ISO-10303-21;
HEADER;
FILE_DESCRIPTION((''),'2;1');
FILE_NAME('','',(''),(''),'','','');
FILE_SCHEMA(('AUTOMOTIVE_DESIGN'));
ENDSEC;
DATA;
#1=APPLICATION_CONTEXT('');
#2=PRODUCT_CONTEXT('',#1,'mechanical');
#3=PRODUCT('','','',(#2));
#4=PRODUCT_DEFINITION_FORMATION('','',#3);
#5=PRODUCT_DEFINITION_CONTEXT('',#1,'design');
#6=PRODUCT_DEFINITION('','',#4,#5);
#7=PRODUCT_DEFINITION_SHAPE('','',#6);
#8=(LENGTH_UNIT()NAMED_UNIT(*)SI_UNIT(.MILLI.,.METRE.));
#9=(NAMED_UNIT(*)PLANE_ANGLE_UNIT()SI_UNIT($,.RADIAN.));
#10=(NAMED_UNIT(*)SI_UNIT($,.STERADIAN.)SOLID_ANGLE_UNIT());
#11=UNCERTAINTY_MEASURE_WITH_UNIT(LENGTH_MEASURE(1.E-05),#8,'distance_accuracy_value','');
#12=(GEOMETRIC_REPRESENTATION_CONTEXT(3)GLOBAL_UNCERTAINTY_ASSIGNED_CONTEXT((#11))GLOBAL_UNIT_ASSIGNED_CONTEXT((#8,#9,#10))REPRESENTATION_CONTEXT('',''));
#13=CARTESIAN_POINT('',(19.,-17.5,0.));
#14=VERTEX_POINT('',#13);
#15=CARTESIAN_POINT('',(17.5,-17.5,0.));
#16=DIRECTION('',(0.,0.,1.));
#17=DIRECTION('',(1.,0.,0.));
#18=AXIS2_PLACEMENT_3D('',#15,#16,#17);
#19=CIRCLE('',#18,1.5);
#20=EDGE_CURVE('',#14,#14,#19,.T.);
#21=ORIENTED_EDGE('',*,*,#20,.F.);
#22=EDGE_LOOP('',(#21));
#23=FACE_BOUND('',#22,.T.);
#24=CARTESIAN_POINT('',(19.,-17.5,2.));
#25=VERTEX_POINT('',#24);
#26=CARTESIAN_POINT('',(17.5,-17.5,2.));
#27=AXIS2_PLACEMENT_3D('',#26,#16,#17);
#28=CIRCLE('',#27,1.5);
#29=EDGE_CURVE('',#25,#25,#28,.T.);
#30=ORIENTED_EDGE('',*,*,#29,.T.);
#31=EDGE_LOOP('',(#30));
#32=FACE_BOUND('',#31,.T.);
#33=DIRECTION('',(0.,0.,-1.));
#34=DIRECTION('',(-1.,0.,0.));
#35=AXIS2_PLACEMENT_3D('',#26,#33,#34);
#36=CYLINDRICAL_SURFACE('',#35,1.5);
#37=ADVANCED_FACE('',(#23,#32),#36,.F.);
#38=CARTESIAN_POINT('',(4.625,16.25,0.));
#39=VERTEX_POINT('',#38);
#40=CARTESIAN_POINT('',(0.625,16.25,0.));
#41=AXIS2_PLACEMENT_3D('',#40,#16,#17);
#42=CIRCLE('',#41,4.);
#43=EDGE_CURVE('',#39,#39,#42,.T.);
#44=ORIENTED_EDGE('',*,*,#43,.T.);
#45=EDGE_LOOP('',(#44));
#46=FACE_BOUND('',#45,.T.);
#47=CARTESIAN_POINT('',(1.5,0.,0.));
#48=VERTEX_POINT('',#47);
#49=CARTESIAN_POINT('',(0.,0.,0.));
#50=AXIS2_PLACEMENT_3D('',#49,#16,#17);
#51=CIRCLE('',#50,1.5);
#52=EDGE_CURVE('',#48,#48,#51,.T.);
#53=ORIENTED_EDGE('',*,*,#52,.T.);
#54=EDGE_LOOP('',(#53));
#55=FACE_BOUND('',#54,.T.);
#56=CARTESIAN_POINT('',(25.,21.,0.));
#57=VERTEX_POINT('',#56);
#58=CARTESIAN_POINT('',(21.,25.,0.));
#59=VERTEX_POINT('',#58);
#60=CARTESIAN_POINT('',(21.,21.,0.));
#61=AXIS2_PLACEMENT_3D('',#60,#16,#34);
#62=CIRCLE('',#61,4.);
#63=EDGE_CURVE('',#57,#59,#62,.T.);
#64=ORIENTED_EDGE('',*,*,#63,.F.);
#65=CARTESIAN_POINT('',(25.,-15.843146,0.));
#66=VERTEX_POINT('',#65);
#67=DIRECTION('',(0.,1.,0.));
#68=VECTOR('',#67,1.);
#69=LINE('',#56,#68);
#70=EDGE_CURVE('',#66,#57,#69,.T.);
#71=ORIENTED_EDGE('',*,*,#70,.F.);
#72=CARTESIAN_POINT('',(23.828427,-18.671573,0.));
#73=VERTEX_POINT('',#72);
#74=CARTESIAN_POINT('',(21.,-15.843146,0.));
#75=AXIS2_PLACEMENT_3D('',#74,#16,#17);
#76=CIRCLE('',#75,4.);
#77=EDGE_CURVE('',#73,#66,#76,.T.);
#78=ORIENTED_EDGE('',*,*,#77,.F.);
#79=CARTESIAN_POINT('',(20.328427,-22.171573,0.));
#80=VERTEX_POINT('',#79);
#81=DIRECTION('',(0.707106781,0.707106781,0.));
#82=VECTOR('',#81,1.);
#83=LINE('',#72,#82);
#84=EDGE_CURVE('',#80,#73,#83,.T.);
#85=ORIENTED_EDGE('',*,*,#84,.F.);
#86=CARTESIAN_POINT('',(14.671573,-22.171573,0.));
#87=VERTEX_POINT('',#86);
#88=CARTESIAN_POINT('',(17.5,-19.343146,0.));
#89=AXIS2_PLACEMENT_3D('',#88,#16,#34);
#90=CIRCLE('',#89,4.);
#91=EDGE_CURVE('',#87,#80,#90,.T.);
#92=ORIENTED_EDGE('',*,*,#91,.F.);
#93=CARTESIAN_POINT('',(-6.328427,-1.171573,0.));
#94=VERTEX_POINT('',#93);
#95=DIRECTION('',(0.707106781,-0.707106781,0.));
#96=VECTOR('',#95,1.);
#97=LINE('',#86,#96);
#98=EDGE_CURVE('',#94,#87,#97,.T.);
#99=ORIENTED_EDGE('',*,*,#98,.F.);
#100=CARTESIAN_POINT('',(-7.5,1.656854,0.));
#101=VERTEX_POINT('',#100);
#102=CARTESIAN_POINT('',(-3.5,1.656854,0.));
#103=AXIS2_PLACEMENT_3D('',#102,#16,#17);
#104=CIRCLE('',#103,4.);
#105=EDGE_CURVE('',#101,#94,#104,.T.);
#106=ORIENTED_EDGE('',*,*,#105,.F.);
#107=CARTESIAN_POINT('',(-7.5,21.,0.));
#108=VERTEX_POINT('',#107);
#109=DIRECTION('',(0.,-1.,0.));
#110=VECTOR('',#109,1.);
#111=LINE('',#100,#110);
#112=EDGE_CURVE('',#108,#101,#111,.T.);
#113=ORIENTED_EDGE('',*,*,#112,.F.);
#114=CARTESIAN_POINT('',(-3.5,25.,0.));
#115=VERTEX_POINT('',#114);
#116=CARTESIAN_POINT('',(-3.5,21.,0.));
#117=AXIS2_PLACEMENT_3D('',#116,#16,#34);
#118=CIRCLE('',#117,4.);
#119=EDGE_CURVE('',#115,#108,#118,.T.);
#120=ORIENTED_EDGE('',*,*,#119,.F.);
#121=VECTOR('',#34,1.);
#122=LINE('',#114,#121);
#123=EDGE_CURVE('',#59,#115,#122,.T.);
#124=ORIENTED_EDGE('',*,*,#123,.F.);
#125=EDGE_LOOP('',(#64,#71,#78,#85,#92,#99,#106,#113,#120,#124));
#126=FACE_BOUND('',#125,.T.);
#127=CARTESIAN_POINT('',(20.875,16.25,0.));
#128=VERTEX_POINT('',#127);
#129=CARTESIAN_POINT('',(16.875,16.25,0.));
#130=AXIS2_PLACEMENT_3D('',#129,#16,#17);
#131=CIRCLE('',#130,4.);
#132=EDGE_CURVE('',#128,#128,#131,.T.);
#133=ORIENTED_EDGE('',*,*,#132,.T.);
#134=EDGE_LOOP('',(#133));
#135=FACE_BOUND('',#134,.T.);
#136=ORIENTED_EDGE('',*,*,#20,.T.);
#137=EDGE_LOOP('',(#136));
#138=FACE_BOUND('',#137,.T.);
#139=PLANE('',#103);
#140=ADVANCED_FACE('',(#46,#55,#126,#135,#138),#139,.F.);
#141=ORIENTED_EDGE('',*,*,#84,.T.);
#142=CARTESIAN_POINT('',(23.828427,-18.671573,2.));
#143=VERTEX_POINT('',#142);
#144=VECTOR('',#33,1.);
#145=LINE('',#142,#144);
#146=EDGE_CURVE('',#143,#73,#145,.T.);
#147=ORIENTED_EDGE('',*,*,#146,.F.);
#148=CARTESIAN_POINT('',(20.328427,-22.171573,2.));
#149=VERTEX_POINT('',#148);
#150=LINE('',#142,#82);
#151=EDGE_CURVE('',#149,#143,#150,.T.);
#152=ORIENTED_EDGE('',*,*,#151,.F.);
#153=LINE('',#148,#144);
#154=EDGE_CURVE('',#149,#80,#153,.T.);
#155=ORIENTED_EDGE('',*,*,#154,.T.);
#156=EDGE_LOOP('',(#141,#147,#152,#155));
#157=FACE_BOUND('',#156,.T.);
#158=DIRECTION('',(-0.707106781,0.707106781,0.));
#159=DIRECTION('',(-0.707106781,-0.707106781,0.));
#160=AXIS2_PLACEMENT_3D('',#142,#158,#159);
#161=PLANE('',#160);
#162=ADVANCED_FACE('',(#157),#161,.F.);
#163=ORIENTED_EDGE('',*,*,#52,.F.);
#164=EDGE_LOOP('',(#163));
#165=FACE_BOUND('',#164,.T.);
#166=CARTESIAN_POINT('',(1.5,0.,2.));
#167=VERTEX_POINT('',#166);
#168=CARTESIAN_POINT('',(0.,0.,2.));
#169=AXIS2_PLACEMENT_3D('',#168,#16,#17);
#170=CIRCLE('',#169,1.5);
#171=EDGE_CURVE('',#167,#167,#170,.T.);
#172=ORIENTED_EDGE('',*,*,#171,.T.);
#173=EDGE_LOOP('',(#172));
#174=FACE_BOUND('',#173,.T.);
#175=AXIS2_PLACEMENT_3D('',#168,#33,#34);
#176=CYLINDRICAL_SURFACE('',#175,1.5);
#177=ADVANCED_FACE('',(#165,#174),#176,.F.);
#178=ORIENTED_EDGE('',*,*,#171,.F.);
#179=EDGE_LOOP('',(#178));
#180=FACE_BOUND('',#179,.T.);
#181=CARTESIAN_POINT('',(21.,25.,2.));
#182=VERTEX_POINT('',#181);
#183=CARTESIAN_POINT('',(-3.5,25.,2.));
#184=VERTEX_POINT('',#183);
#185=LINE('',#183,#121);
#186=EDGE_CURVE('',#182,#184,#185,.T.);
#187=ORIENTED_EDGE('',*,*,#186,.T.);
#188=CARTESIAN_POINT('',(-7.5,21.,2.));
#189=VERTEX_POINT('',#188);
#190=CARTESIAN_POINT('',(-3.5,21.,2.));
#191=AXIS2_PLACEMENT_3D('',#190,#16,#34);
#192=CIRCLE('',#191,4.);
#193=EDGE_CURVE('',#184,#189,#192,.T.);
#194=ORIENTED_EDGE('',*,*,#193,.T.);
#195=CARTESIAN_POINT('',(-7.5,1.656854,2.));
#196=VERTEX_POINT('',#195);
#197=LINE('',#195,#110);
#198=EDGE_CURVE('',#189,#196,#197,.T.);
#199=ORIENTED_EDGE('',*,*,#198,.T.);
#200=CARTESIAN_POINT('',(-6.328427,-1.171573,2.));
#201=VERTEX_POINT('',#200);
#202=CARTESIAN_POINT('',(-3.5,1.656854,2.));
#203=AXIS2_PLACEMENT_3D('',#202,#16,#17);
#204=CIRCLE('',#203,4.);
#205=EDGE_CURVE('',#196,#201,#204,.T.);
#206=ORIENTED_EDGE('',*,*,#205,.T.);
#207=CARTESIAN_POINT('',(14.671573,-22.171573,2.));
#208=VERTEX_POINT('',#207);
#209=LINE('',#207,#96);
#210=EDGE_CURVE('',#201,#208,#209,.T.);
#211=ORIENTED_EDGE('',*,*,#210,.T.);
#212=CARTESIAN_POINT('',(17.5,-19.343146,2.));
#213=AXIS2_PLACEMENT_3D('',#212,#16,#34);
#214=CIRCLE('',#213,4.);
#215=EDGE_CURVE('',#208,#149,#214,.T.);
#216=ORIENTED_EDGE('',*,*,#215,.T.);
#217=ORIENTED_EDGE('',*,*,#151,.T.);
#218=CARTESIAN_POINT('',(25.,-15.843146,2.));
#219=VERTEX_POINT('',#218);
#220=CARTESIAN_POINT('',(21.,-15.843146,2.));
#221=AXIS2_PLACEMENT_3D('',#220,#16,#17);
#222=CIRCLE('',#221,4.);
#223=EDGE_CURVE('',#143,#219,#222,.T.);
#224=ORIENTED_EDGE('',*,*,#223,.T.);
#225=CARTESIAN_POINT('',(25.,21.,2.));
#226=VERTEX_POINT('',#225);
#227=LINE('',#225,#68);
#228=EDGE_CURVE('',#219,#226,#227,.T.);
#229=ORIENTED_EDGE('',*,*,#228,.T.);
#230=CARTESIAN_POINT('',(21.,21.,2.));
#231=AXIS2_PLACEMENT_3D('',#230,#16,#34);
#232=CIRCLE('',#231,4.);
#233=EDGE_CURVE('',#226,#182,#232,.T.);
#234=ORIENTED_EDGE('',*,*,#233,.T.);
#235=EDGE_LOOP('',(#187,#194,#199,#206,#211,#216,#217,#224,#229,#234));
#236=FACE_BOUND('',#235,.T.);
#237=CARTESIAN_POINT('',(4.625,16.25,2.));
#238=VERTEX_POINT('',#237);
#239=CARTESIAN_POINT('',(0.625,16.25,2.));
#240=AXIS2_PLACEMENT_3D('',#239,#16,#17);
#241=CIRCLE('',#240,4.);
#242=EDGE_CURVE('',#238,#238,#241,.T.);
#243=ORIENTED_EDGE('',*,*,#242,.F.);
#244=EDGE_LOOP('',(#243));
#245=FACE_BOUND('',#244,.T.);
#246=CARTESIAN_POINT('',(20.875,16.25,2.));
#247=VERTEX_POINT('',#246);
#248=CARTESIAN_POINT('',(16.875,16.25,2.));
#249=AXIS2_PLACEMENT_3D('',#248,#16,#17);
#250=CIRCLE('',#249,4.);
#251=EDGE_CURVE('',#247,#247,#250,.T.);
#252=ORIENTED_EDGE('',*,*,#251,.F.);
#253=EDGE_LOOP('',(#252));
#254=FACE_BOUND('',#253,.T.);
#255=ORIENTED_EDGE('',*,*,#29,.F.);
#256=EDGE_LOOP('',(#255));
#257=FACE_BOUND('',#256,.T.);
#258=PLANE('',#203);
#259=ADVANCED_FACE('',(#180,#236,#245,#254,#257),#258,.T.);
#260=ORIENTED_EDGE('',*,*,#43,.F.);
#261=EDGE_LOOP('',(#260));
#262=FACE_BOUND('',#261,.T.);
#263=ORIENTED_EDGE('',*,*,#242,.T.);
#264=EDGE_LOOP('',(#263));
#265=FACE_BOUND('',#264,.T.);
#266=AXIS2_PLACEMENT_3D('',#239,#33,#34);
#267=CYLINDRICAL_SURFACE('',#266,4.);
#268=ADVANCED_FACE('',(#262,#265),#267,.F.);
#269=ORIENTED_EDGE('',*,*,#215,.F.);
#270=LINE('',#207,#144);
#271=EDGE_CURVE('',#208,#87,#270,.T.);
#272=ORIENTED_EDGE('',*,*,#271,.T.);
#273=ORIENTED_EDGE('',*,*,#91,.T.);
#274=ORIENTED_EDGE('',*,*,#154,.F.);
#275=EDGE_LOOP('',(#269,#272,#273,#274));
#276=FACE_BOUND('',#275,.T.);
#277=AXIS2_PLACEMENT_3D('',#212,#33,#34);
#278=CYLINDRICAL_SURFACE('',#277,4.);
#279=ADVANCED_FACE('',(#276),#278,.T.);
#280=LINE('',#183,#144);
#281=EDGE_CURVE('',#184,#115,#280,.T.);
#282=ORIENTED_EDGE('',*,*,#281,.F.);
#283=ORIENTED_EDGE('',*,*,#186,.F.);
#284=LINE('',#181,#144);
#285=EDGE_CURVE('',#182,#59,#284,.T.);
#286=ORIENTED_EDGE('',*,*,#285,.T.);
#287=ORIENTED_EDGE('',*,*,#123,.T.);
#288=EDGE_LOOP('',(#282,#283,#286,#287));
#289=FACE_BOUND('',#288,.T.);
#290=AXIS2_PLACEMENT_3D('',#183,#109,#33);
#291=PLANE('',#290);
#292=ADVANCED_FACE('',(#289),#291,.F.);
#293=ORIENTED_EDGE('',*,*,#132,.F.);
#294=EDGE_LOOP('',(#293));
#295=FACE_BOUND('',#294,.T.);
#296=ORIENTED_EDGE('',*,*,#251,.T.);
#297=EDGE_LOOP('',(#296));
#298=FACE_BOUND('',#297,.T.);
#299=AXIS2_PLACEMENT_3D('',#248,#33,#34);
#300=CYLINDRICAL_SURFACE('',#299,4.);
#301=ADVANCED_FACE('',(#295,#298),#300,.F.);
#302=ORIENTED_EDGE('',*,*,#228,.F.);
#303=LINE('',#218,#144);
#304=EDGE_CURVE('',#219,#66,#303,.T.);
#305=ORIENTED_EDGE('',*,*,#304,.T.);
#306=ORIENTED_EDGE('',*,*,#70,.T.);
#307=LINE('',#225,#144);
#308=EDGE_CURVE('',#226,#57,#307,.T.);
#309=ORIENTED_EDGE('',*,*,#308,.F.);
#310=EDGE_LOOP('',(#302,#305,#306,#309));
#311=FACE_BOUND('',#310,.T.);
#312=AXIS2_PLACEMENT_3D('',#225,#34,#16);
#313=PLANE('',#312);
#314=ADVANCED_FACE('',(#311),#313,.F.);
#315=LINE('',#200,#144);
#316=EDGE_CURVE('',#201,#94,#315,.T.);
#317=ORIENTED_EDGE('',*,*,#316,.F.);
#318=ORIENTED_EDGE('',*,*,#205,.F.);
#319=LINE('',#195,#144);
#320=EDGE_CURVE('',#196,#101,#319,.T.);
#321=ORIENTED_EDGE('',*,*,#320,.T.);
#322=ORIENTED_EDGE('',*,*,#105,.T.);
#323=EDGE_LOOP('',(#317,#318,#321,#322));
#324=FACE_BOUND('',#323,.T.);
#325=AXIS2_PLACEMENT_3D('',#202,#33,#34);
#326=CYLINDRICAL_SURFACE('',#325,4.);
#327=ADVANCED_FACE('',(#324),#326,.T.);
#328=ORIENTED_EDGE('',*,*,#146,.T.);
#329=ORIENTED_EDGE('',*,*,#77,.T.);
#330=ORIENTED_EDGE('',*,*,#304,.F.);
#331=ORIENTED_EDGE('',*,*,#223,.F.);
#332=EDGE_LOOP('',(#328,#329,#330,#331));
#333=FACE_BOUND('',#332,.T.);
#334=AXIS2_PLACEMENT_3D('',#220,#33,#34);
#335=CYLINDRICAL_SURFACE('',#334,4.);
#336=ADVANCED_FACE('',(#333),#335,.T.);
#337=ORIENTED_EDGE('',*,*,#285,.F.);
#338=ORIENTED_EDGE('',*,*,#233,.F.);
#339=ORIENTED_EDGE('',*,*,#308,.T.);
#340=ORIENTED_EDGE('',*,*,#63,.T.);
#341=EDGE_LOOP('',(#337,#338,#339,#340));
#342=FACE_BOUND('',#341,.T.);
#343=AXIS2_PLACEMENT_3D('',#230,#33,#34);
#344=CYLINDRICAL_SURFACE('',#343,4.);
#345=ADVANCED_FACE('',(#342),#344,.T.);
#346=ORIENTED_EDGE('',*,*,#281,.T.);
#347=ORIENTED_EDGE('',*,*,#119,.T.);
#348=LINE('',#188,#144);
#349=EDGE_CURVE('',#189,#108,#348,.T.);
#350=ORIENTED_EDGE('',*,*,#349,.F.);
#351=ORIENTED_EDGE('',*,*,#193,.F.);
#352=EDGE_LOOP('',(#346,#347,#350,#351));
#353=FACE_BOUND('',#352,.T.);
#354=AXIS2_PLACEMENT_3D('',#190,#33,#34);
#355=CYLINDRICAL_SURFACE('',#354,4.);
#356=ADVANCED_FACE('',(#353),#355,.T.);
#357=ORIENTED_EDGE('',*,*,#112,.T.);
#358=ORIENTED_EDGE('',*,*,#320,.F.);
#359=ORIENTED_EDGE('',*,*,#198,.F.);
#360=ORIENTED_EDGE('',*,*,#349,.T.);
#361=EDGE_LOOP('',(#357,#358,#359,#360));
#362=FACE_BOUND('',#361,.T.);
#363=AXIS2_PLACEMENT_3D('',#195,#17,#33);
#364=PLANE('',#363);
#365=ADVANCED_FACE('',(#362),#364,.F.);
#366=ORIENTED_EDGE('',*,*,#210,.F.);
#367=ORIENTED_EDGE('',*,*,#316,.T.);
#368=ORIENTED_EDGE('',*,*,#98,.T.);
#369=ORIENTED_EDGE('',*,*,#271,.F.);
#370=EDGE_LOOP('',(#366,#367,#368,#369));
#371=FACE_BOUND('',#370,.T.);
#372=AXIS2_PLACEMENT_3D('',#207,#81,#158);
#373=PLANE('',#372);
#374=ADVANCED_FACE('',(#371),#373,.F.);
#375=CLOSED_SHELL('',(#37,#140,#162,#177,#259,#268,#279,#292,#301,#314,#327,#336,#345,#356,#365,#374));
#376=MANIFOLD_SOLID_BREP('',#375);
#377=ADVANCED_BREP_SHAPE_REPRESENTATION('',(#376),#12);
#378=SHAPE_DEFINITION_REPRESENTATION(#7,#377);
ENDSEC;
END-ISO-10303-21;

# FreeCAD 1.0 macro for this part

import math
import FreeCAD as App
import Part
import Sketcher

V = App.Vector
Q = App.Units.Quantity

doc = App.newDocument("Part")
params = doc.addObject("Spreadsheet::Sheet", "Params")
for row, (alias, value) in enumerate([
    ("sketch1_diameter", "3 mm"),
    ("sketch1_diameter2", "8 mm"),
    ("sketch1_width", "24.5 mm"),
    ("pad1_length", "2 mm"),
], start=1):
    params.set(f"A{row}", alias)
    params.set(f"B{row}", "=" + value)
    params.setAlias(f"B{row}", alias)

body = doc.addObject("PartDesign::Body", "Body")

# Sketch on XY plane
sketch1 = doc.addObject("Sketcher::SketchObject", "Sketch")
body.addObject(sketch1)
sketch1.AttachmentSupport = (doc.XY_Plane, [""])
sketch1.MapMode = "FlatFace"
sketch1.addGeometry([
    Part.LineSegment(V(20.328427, -22.171573, 0), V(23.828427, -18.671573, 0)),  # 0
    Part.ArcOfCircle(Part.Circle(V(21, -15.843146, 0), V(0, 0, 1), 4), math.radians(-45), math.radians(0)),  # 1
    Part.LineSegment(V(25, -15.843146, 0), V(25, 21, 0)),  # 2
    Part.ArcOfCircle(Part.Circle(V(21, 21, 0), V(0, 0, 1), 4), math.radians(0), math.radians(90)),  # 3
    Part.LineSegment(V(21, 25, 0), V(-3.5, 25, 0)),  # 4
    Part.ArcOfCircle(Part.Circle(V(-3.5, 21, 0), V(0, 0, 1), 4), math.radians(90), math.radians(180)),  # 5
    Part.LineSegment(V(-7.5, 21, 0), V(-7.5, 1.656854, 0)),  # 6
    Part.ArcOfCircle(Part.Circle(V(-3.5, 1.656854, 0), V(0, 0, 1), 4), math.radians(-180), math.radians(-135)),  # 7
    Part.LineSegment(V(-6.328427, -1.171573, 0), V(14.671573, -22.171573, 0)),  # 8
    Part.ArcOfCircle(Part.Circle(V(17.5, -19.343146, 0), V(0, 0, 1), 4), math.radians(-135), math.radians(-45)),  # 9
    Part.Circle(V(17.5, -17.5, 0), V(0, 0, 1), 1.5),  # 10
    Part.Circle(V(0, 0, 0), V(0, 0, 1), 1.5),  # 11
    Part.Circle(V(16.875, 16.25, 0), V(0, 0, 1), 4),  # 12
    Part.Circle(V(0.625, 16.25, 0), V(0, 0, 1), 4),  # 13
], False)
sketch1.addConstraint([
    Sketcher.Constraint("Tangent", 0, 2, 1, 1),
    Sketcher.Constraint("Tangent", 1, 2, 2, 1),
    Sketcher.Constraint("Tangent", 2, 2, 3, 1),
    Sketcher.Constraint("Tangent", 3, 2, 4, 1),
    Sketcher.Constraint("Tangent", 4, 2, 5, 1),
    Sketcher.Constraint("Tangent", 5, 2, 6, 1),
    Sketcher.Constraint("Tangent", 6, 2, 7, 1),
    Sketcher.Constraint("Tangent", 7, 2, 8, 1),
    Sketcher.Constraint("Tangent", 8, 2, 9, 1),
    Sketcher.Constraint("Tangent", 9, 2, 0, 1),
    Sketcher.Constraint("Vertical", 2),
    Sketcher.Constraint("Horizontal", 4),
    Sketcher.Constraint("Vertical", 6),
    Sketcher.Constraint("Coincident", 11, 3, -1, 1),
    Sketcher.Constraint("Equal", 1, 3),
    Sketcher.Constraint("Equal", 3, 5),
    Sketcher.Constraint("Equal", 5, 7),
    Sketcher.Constraint("Equal", 7, 9),
    Sketcher.Constraint("Equal", 10, 11),
    Sketcher.Constraint("Equal", 9, 12),
    Sketcher.Constraint("Equal", 12, 13),
    Sketcher.Constraint("Perpendicular", 0, 8),
    Sketcher.Constraint("Horizontal", 12, 3, 13, 3),
    Sketcher.Constraint("Horizontal", 8, 2, 9, 2),
    Sketcher.Constraint("Vertical", 9, 3, 10, 3),
    Sketcher.Constraint("Diameter", 10, Q("3 mm")),
    Sketcher.Constraint("Diameter", 12, Q("8 mm")),
    Sketcher.Constraint("DistanceX", 4, 2, 4, 1, Q("24.5 mm")),
    Sketcher.Constraint("DistanceX", -1, 1, 1, 3, Q("21 mm")),
    Sketcher.Constraint("DistanceY", -1, 1, 3, 3, Q("21 mm")),
    Sketcher.Constraint("DistanceX", 7, 3, 9, 3, Q("21 mm")),
    Sketcher.Constraint("DistanceY", 10, 3, -1, 1, Q("17.5 mm")),
    Sketcher.Constraint("DistanceY", -1, 1, 12, 3, Q("16.25 mm")),
    Sketcher.Constraint("DistanceX", 13, 3, 12, 3, Q("16.25 mm")),
    Sketcher.Constraint("DistanceX", -1, 1, 12, 3, Q("16.875 mm")),
    Sketcher.Constraint("DistanceY", 2, 1, 2, 2, Q("36.843146 mm")),
])
sketch1.setExpression("Constraints[25]", "Params.sketch1_diameter")
sketch1.setExpression("Constraints[26]", "Params.sketch1_diameter2")
sketch1.setExpression("Constraints[27]", "Params.sketch1_width")
pad1 = doc.addObject("PartDesign::Pad", "Pad")
body.addObject(pad1)
pad1.Profile = sketch1
pad1.setExpression("Length", "Params.pad1_length")

doc.recompute()
